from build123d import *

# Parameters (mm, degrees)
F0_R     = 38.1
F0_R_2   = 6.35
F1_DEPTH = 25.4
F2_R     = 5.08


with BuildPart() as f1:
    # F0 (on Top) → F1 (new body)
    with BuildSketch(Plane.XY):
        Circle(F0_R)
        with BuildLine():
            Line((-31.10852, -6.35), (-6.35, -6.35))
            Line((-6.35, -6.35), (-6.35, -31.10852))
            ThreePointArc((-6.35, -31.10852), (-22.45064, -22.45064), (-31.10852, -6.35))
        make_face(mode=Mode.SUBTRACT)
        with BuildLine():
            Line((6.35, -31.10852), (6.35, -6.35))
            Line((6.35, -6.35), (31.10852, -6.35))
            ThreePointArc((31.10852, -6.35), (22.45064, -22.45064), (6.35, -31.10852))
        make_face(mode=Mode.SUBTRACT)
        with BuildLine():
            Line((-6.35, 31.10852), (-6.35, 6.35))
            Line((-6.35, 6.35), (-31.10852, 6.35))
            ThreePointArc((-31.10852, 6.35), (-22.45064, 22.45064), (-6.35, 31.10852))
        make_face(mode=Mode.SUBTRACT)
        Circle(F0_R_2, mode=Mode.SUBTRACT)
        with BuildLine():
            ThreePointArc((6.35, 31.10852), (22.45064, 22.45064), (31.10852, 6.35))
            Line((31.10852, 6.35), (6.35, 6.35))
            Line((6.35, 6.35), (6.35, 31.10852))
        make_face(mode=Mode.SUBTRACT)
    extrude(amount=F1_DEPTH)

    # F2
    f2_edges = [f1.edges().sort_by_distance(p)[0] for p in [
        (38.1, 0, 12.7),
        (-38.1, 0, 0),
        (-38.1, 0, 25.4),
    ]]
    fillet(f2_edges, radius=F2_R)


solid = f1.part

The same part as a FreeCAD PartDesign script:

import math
import FreeCAD as App
import Part
import Sketcher
from FreeCAD import Vector
Q = App.Units.Quantity


def edges_at(feature, points):
    """Names of the edges that pass closest to the given points."""
    edges = feature.Shape.Edges
    near = lambda p: min(range(len(edges)), key=lambda i: edges[i].distToShape(Part.Vertex(*p))[0])
    return sorted({f"Edge{near(p) + 1}" for p in points})

doc = App.newDocument("Part")
params = doc.addObject("Spreadsheet::Sheet", "Params")
for row, (alias, value) in enumerate([
    ("sketch1_diameter", "3 in"),
    ("sketch1_diameter2", "0.5 in"),
    ("sketch1_radius", "1.2500001 in"),
    ("pad1_length", "1 in"),
    ("fillet_radius", "0.2 in"),
], start=1):
    params.set(f"A{row}", alias)
    params.set(f"B{row}", "=" + value)
    params.setAlias(f"B{row}", alias)

body = doc.addObject("PartDesign::Body", "Body")

sketch1 = body.newObject("Sketcher::SketchObject", "Sketch")
sketch1.AttachmentSupport = (doc.getObject("XY_Plane"), [""])
sketch1.MapMode = "FlatFace"
sketch1.addGeometry(Part.Circle(Vector(0, 0, 0), Vector(0, 0, 1), 38), False)
sketch1.addGeometry(Part.ArcOfCircle(Part.Circle(Vector(0, 0, 0), Vector(0, 0, 1), 32), math.radians(-168), math.radians(-102)), False)
sketch1.addGeometry(Part.LineSegment(Vector(-31, -6, 0), Vector(-6, -6, 0)), False)
sketch1.addGeometry(Part.LineSegment(Vector(-6, -6, 0), Vector(-6, -31, 0)), False)
sketch1.addGeometry(Part.ArcOfCircle(Part.Circle(Vector(0, 0, 0), Vector(0, 0, 1), 32), math.radians(-78), math.radians(-12)), False)
sketch1.addGeometry(Part.LineSegment(Vector(6, -31, 0), Vector(6, -6, 0)), False)
sketch1.addGeometry(Part.LineSegment(Vector(6, -6, 0), Vector(31, -6, 0)), False)
sketch1.addGeometry(Part.Circle(Vector(0, 0, 0), Vector(0, 0, 1), 6), False)
sketch1.addGeometry(Part.ArcOfCircle(Part.Circle(Vector(0, 0, 0), Vector(0, 0, 1), 32), math.radians(102), math.radians(168)), False)
sketch1.addGeometry(Part.LineSegment(Vector(-6, 31, 0), Vector(-6, 6, 0)), False)
sketch1.addGeometry(Part.LineSegment(Vector(-6, 6, 0), Vector(-31, 6, 0)), False)
sketch1.addGeometry(Part.LineSegment(Vector(6, 6, 0), Vector(6, 31, 0)), False)
sketch1.addGeometry(Part.ArcOfCircle(Part.Circle(Vector(0, 0, 0), Vector(0, 0, 1), 32), math.radians(12), math.radians(78)), False)
sketch1.addGeometry(Part.LineSegment(Vector(31, 6, 0), Vector(6, 6, 0)), False)
sketch1.addConstraint(Sketcher.Constraint("Coincident", 1, 1, 2, 1))
sketch1.addConstraint(Sketcher.Constraint("Coincident", 2, 2, 3, 1))
sketch1.addConstraint(Sketcher.Constraint("Coincident", 3, 2, 1, 2))
sketch1.addConstraint(Sketcher.Constraint("Coincident", 4, 1, 5, 1))
sketch1.addConstraint(Sketcher.Constraint("Coincident", 5, 2, 6, 1))
sketch1.addConstraint(Sketcher.Constraint("Coincident", 6, 2, 4, 2))
sketch1.addConstraint(Sketcher.Constraint("Coincident", 8, 1, 9, 1))
sketch1.addConstraint(Sketcher.Constraint("Coincident", 9, 2, 10, 1))
sketch1.addConstraint(Sketcher.Constraint("Coincident", 10, 2, 8, 2))
sketch1.addConstraint(Sketcher.Constraint("Coincident", 11, 2, 12, 2))
sketch1.addConstraint(Sketcher.Constraint("Coincident", 12, 1, 13, 1))
sketch1.addConstraint(Sketcher.Constraint("Coincident", 13, 2, 11, 1))
sketch1.addConstraint(Sketcher.Constraint("Horizontal", 2))
sketch1.addConstraint(Sketcher.Constraint("Vertical", 3))
sketch1.addConstraint(Sketcher.Constraint("Vertical", 5))
sketch1.addConstraint(Sketcher.Constraint("Horizontal", 6))
sketch1.addConstraint(Sketcher.Constraint("Vertical", 9))
sketch1.addConstraint(Sketcher.Constraint("Horizontal", 10))
sketch1.addConstraint(Sketcher.Constraint("Vertical", 11))
sketch1.addConstraint(Sketcher.Constraint("Horizontal", 13))
sketch1.addConstraint(Sketcher.Constraint("Coincident", 0, 3, -1, 1))
sketch1.addConstraint(Sketcher.Constraint("Coincident", 1, 3, -1, 1))
sketch1.addConstraint(Sketcher.Constraint("Coincident", 4, 3, -1, 1))
sketch1.addConstraint(Sketcher.Constraint("Coincident", 7, 3, -1, 1))
sketch1.addConstraint(Sketcher.Constraint("Coincident", 8, 3, -1, 1))
sketch1.addConstraint(Sketcher.Constraint("Coincident", 12, 3, -1, 1))
sketch1.addConstraint(Sketcher.Constraint("Equal", 1, 4))
sketch1.addConstraint(Sketcher.Constraint("Equal", 4, 8))
sketch1.addConstraint(Sketcher.Constraint("Equal", 8, 12))
sketch1.addConstraint(Sketcher.Constraint("Symmetric", 5, 2, 9, 2, -1, 1))
sketch1.addConstraint(Sketcher.Constraint("Symmetric", 2, 2, 13, 2, -1, 1))
sketch1.addConstraint(Sketcher.Constraint("Symmetric", 2, 2, 5, 2, -2))
sketch1.addConstraint(Sketcher.Constraint("Equal", 13, 3))
sketch1.addConstraint(Sketcher.Constraint("Diameter", 0, Q("3 in")))
sketch1.addConstraint(Sketcher.Constraint("Diameter", 7, Q("0.5 in")))
sketch1.addConstraint(Sketcher.Constraint("Radius", 1, Q("1.2500001 in")))
sketch1.addConstraint(Sketcher.Constraint("DistanceX", 3, 2, 4, 1, Q("0.5 in")))
sketch1.setExpression("Constraints[33]", "Params.sketch1_diameter")
sketch1.setExpression("Constraints[34]", "Params.sketch1_diameter2")
sketch1.setExpression("Constraints[35]", "Params.sketch1_radius")
pad1 = body.newObject("PartDesign::Pad", "Pad")
pad1.Profile = sketch1
pad1.setExpression("Length", "Params.pad1_length")
doc.recompute()

fillet = body.newObject("PartDesign::Fillet", "Fillet")
fillet.Base = (pad1, edges_at(pad1, [(38.1, 0, 12.7), (-38.1, 0, 0), (-38.1, 0, 25.4)]))
fillet.setExpression("Radius", "Params.fillet_radius")

doc.recompute()
